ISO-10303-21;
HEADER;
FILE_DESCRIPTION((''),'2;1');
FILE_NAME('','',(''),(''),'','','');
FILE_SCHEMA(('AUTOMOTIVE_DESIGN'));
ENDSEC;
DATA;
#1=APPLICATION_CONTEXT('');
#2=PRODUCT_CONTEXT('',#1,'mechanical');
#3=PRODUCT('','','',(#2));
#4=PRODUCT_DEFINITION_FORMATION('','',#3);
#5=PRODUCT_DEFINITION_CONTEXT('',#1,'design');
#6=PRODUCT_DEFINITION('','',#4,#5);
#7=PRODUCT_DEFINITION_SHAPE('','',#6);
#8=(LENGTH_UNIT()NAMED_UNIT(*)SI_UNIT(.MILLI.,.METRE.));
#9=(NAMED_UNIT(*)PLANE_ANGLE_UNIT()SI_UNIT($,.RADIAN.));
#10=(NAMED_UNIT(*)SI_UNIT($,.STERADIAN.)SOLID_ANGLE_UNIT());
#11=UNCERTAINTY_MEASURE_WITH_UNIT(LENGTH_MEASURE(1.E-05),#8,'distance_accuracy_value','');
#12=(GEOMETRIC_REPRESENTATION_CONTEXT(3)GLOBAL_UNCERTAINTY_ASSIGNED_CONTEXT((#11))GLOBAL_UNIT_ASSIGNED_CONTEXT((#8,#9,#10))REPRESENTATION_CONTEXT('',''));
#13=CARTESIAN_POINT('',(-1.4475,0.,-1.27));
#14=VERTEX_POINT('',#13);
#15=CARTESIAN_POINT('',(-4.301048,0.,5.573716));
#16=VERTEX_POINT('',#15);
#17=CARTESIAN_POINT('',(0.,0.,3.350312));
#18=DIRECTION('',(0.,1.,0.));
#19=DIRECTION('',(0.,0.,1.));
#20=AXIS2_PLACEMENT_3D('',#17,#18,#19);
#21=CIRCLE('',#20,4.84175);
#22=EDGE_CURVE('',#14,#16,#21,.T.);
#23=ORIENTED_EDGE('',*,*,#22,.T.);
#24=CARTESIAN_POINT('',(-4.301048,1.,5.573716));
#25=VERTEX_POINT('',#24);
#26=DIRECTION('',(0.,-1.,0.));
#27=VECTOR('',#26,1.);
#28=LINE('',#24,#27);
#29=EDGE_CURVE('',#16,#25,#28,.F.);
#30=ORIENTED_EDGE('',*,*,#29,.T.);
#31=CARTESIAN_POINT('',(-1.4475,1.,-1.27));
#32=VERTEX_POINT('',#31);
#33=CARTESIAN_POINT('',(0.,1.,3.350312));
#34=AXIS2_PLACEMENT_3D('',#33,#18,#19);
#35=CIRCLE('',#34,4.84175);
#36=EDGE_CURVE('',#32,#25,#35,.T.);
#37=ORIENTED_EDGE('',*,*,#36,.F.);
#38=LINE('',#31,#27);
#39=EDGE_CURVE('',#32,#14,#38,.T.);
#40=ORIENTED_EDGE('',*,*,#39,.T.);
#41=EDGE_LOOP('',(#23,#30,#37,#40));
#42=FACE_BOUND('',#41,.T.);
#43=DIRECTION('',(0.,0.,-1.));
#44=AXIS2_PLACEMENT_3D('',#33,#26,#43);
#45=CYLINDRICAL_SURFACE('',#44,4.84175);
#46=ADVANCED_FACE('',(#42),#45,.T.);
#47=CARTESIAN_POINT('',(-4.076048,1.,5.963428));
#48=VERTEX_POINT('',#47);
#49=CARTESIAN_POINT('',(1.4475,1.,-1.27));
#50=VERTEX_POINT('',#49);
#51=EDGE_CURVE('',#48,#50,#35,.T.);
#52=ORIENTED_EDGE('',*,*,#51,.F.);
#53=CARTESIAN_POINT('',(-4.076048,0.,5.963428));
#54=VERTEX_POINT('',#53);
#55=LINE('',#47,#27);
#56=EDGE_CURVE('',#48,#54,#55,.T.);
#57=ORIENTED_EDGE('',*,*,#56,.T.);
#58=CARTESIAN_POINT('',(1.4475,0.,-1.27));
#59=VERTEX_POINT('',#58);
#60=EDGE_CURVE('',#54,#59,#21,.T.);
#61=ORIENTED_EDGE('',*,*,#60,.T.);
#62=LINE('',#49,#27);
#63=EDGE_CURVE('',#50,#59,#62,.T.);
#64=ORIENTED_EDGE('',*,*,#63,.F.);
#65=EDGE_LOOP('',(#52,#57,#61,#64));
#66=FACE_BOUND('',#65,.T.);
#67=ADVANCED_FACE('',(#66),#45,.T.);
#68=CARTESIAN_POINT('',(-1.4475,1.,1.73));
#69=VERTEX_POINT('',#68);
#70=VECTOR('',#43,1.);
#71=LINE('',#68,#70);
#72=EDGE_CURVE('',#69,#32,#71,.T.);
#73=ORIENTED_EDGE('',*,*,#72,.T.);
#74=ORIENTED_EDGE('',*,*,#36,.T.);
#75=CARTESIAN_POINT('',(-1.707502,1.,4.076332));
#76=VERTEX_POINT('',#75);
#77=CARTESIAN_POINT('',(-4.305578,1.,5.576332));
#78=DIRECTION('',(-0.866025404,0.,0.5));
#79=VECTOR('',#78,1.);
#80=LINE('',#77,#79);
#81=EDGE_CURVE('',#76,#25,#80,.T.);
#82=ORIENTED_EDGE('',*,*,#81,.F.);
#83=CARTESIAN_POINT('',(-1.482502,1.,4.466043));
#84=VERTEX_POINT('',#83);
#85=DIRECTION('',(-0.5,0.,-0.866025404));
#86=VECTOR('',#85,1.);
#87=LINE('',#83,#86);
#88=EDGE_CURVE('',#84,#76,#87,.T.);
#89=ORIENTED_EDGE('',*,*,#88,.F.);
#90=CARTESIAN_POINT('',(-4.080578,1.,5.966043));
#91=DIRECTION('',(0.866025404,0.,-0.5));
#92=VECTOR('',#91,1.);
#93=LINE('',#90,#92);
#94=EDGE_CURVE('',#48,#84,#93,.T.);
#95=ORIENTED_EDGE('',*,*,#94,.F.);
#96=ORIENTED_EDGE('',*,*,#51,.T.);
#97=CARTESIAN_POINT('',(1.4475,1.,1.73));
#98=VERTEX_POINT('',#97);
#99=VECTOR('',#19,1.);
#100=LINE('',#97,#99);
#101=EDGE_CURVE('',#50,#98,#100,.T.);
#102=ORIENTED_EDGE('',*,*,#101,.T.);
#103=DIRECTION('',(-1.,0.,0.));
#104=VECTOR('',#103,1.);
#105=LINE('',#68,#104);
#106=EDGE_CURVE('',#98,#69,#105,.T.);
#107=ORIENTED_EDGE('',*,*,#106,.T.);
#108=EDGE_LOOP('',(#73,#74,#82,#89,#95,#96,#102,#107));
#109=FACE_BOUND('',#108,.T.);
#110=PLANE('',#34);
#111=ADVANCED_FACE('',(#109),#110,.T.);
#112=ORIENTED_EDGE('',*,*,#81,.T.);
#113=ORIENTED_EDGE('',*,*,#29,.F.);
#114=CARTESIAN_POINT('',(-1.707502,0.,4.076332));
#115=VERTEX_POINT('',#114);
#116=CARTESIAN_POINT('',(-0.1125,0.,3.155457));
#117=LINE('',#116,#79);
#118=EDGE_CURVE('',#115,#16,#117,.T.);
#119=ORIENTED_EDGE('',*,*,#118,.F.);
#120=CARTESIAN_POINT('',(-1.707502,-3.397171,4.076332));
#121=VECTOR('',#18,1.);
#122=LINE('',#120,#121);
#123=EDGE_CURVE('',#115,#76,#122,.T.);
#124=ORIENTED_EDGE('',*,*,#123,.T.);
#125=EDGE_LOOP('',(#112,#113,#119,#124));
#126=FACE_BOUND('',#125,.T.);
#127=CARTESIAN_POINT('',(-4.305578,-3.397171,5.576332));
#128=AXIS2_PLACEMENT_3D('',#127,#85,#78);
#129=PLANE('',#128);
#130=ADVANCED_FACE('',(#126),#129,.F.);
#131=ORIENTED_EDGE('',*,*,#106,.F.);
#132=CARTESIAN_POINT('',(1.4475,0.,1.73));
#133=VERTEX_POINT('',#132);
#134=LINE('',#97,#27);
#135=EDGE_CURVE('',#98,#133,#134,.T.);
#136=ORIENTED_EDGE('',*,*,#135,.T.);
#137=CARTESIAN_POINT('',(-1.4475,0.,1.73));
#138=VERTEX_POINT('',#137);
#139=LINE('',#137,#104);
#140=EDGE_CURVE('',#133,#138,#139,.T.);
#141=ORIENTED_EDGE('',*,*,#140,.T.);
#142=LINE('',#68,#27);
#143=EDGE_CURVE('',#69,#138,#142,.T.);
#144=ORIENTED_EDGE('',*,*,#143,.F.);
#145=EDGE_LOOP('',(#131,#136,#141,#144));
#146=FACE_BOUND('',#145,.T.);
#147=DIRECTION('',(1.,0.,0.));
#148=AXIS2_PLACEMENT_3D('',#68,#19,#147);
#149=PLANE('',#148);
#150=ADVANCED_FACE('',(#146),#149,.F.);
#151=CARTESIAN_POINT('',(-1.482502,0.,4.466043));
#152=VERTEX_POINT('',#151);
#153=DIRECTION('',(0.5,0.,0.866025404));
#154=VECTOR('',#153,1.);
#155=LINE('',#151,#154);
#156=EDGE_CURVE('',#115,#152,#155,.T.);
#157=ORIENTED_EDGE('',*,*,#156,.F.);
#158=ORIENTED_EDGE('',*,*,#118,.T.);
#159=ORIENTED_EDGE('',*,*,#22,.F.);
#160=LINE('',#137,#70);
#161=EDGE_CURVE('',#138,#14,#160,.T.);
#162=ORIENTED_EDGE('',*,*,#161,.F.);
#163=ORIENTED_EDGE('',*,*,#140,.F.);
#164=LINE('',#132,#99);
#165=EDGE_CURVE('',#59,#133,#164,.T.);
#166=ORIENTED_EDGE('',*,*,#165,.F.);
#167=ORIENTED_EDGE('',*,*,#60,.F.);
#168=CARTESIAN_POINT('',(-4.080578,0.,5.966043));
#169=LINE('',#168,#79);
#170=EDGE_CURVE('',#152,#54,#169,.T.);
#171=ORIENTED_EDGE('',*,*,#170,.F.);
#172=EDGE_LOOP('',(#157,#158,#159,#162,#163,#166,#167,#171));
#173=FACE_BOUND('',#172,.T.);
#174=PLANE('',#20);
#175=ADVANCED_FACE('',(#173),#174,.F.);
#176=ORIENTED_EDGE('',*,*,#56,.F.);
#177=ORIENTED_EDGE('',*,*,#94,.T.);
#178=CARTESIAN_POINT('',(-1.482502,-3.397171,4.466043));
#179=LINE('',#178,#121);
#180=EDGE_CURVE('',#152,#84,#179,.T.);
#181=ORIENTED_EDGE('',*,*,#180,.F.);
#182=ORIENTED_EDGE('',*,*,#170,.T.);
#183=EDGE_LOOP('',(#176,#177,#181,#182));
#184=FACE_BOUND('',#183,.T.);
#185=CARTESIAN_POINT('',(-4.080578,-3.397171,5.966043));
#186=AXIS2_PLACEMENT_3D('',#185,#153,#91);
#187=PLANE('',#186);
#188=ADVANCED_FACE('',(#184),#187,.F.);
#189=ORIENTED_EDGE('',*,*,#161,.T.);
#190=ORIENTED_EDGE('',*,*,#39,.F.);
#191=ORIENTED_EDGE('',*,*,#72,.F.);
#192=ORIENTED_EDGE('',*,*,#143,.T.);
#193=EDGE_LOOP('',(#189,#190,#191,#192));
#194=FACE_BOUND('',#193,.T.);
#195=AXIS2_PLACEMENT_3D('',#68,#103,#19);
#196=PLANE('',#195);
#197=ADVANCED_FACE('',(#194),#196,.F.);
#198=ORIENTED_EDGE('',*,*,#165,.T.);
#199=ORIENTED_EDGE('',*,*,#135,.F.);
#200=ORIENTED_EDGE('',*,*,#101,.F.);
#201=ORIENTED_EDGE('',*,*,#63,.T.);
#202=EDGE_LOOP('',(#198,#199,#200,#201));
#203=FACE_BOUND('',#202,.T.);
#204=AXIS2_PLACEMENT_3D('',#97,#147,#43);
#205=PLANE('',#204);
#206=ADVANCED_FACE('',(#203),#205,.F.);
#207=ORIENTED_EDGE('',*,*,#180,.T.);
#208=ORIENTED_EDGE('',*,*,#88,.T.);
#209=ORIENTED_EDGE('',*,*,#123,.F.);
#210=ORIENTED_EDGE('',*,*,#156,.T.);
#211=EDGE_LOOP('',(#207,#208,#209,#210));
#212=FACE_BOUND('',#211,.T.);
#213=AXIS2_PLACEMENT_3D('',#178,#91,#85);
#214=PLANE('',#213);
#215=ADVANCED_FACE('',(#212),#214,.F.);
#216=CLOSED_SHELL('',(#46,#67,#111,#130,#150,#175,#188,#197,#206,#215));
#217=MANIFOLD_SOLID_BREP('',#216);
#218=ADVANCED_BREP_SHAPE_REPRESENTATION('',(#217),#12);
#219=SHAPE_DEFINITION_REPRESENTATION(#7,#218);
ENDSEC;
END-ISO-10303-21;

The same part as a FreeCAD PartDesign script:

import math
import FreeCAD as App
import Part
import Sketcher
from FreeCAD import Vector
Q = App.Units.Quantity


def add_polygon(sketch, points):
    """Adds a closed chain of lines whose ends are joined by coincident constraints."""
    first, n = sketch.GeometryCount, len(points)
    for a, b in zip(points, points[1:] + points[:1]):
        sketch.addGeometry(Part.LineSegment(App.Vector(*a, 0), App.Vector(*b, 0)), False)
    for i in range(n):
        sketch.addConstraint(Sketcher.Constraint("Coincident", first + i, 2, first + (i + 1) % n, 1))

doc = App.newDocument("Part")
body = doc.addObject("PartDesign::Body", "Body")

sketch1 = doc.addObject("Sketcher::SketchObject", "Sketch")
body.addObject(sketch1)
sketch1.AttachmentSupport = (doc.XZ_Plane, [""])
sketch1.MapMode = "FlatFace"
sketch1.addGeometry([
    Part.LineSegment(Vector(1.4, 1.7, 0), Vector(-1.4, 1.7, 0)),
    Part.LineSegment(Vector(-1.4, 1.7, 0), Vector(-1.4, -1.3, 0)),
    Part.ArcOfCircle(Part.Circle(Vector(0, 3.4, 0), Vector(0, 0, 1), 4.8), math.radians(-73), math.radians(253)),
    Part.LineSegment(Vector(1.4, -1.3, 0), Vector(1.4, 1.7, 0)),
], False)
sketch1.addConstraint([
    Sketcher.Constraint("Coincident", 0, 2, 1, 1),
    Sketcher.Constraint("Coincident", 1, 2, 2, 2),
    Sketcher.Constraint("Coincident", 2, 1, 3, 1),
    Sketcher.Constraint("Coincident", 3, 2, 0, 1),
    Sketcher.Constraint("Horizontal", 0),
    Sketcher.Constraint("Vertical", 1),
    Sketcher.Constraint("Vertical", 3),
    Sketcher.Constraint("Symmetric", 1, 2, 2, 1, -2),
    Sketcher.Constraint("DistanceY", 1, 2, 1, 1, Q("3 mm")),
    Sketcher.Constraint("DistanceX", 0, 2, 0, 1, Q("2.895 mm")),
    Sketcher.Constraint("DistanceY", -1, 1, 0, 2, Q("1.73 mm")),
    Sketcher.Constraint("Radius", 2, Q("4.84175 mm")),
])
pad1 = doc.addObject("PartDesign::Pad", "Pad")
body.addObject(pad1)
pad1.Profile = sketch1
pad1.Length = 1
pad1.Reversed = True

sketch2 = doc.addObject("Sketcher::SketchObject", "Sketch001")
body.addObject(sketch2)
sketch2.AttachmentSupport = (doc.XZ_Plane, [""])
sketch2.MapMode = "FlatFace"
sketch2.AttachmentOffset = App.Placement(Vector(0, 0, -1), App.Rotation())
add_polygon(sketch2, [(-4.31, 5.58), (-4.08, 5.97), (-1.48, 4.47), (-1.71, 4.08)])
sketch2.addConstraint([
    Sketcher.Constraint("Perpendicular", 0, 1),
    Sketcher.Constraint("Perpendicular", 1, 2),
    Sketcher.Constraint("Perpendicular", 2, 3),
    Sketcher.Constraint("Angle", 0, Q("60 deg")),
    Sketcher.Constraint("Distance", 1, Q("3 mm")),
    Sketcher.Constraint("Distance", 0, Q("0.45 mm")),
    Sketcher.Constraint("DistanceX", 0, 2, -1, 1, Q("4.080578 mm")),
    Sketcher.Constraint("DistanceY", -1, 1, 2, 2, Q("4.076332 mm")),
])
pocket1 = doc.addObject("PartDesign::Pocket", "Pocket")
body.addObject(pocket1)
pocket1.Profile = sketch2
pocket1.Length = 1
pocket1.Reversed = True

doc.recompute()
